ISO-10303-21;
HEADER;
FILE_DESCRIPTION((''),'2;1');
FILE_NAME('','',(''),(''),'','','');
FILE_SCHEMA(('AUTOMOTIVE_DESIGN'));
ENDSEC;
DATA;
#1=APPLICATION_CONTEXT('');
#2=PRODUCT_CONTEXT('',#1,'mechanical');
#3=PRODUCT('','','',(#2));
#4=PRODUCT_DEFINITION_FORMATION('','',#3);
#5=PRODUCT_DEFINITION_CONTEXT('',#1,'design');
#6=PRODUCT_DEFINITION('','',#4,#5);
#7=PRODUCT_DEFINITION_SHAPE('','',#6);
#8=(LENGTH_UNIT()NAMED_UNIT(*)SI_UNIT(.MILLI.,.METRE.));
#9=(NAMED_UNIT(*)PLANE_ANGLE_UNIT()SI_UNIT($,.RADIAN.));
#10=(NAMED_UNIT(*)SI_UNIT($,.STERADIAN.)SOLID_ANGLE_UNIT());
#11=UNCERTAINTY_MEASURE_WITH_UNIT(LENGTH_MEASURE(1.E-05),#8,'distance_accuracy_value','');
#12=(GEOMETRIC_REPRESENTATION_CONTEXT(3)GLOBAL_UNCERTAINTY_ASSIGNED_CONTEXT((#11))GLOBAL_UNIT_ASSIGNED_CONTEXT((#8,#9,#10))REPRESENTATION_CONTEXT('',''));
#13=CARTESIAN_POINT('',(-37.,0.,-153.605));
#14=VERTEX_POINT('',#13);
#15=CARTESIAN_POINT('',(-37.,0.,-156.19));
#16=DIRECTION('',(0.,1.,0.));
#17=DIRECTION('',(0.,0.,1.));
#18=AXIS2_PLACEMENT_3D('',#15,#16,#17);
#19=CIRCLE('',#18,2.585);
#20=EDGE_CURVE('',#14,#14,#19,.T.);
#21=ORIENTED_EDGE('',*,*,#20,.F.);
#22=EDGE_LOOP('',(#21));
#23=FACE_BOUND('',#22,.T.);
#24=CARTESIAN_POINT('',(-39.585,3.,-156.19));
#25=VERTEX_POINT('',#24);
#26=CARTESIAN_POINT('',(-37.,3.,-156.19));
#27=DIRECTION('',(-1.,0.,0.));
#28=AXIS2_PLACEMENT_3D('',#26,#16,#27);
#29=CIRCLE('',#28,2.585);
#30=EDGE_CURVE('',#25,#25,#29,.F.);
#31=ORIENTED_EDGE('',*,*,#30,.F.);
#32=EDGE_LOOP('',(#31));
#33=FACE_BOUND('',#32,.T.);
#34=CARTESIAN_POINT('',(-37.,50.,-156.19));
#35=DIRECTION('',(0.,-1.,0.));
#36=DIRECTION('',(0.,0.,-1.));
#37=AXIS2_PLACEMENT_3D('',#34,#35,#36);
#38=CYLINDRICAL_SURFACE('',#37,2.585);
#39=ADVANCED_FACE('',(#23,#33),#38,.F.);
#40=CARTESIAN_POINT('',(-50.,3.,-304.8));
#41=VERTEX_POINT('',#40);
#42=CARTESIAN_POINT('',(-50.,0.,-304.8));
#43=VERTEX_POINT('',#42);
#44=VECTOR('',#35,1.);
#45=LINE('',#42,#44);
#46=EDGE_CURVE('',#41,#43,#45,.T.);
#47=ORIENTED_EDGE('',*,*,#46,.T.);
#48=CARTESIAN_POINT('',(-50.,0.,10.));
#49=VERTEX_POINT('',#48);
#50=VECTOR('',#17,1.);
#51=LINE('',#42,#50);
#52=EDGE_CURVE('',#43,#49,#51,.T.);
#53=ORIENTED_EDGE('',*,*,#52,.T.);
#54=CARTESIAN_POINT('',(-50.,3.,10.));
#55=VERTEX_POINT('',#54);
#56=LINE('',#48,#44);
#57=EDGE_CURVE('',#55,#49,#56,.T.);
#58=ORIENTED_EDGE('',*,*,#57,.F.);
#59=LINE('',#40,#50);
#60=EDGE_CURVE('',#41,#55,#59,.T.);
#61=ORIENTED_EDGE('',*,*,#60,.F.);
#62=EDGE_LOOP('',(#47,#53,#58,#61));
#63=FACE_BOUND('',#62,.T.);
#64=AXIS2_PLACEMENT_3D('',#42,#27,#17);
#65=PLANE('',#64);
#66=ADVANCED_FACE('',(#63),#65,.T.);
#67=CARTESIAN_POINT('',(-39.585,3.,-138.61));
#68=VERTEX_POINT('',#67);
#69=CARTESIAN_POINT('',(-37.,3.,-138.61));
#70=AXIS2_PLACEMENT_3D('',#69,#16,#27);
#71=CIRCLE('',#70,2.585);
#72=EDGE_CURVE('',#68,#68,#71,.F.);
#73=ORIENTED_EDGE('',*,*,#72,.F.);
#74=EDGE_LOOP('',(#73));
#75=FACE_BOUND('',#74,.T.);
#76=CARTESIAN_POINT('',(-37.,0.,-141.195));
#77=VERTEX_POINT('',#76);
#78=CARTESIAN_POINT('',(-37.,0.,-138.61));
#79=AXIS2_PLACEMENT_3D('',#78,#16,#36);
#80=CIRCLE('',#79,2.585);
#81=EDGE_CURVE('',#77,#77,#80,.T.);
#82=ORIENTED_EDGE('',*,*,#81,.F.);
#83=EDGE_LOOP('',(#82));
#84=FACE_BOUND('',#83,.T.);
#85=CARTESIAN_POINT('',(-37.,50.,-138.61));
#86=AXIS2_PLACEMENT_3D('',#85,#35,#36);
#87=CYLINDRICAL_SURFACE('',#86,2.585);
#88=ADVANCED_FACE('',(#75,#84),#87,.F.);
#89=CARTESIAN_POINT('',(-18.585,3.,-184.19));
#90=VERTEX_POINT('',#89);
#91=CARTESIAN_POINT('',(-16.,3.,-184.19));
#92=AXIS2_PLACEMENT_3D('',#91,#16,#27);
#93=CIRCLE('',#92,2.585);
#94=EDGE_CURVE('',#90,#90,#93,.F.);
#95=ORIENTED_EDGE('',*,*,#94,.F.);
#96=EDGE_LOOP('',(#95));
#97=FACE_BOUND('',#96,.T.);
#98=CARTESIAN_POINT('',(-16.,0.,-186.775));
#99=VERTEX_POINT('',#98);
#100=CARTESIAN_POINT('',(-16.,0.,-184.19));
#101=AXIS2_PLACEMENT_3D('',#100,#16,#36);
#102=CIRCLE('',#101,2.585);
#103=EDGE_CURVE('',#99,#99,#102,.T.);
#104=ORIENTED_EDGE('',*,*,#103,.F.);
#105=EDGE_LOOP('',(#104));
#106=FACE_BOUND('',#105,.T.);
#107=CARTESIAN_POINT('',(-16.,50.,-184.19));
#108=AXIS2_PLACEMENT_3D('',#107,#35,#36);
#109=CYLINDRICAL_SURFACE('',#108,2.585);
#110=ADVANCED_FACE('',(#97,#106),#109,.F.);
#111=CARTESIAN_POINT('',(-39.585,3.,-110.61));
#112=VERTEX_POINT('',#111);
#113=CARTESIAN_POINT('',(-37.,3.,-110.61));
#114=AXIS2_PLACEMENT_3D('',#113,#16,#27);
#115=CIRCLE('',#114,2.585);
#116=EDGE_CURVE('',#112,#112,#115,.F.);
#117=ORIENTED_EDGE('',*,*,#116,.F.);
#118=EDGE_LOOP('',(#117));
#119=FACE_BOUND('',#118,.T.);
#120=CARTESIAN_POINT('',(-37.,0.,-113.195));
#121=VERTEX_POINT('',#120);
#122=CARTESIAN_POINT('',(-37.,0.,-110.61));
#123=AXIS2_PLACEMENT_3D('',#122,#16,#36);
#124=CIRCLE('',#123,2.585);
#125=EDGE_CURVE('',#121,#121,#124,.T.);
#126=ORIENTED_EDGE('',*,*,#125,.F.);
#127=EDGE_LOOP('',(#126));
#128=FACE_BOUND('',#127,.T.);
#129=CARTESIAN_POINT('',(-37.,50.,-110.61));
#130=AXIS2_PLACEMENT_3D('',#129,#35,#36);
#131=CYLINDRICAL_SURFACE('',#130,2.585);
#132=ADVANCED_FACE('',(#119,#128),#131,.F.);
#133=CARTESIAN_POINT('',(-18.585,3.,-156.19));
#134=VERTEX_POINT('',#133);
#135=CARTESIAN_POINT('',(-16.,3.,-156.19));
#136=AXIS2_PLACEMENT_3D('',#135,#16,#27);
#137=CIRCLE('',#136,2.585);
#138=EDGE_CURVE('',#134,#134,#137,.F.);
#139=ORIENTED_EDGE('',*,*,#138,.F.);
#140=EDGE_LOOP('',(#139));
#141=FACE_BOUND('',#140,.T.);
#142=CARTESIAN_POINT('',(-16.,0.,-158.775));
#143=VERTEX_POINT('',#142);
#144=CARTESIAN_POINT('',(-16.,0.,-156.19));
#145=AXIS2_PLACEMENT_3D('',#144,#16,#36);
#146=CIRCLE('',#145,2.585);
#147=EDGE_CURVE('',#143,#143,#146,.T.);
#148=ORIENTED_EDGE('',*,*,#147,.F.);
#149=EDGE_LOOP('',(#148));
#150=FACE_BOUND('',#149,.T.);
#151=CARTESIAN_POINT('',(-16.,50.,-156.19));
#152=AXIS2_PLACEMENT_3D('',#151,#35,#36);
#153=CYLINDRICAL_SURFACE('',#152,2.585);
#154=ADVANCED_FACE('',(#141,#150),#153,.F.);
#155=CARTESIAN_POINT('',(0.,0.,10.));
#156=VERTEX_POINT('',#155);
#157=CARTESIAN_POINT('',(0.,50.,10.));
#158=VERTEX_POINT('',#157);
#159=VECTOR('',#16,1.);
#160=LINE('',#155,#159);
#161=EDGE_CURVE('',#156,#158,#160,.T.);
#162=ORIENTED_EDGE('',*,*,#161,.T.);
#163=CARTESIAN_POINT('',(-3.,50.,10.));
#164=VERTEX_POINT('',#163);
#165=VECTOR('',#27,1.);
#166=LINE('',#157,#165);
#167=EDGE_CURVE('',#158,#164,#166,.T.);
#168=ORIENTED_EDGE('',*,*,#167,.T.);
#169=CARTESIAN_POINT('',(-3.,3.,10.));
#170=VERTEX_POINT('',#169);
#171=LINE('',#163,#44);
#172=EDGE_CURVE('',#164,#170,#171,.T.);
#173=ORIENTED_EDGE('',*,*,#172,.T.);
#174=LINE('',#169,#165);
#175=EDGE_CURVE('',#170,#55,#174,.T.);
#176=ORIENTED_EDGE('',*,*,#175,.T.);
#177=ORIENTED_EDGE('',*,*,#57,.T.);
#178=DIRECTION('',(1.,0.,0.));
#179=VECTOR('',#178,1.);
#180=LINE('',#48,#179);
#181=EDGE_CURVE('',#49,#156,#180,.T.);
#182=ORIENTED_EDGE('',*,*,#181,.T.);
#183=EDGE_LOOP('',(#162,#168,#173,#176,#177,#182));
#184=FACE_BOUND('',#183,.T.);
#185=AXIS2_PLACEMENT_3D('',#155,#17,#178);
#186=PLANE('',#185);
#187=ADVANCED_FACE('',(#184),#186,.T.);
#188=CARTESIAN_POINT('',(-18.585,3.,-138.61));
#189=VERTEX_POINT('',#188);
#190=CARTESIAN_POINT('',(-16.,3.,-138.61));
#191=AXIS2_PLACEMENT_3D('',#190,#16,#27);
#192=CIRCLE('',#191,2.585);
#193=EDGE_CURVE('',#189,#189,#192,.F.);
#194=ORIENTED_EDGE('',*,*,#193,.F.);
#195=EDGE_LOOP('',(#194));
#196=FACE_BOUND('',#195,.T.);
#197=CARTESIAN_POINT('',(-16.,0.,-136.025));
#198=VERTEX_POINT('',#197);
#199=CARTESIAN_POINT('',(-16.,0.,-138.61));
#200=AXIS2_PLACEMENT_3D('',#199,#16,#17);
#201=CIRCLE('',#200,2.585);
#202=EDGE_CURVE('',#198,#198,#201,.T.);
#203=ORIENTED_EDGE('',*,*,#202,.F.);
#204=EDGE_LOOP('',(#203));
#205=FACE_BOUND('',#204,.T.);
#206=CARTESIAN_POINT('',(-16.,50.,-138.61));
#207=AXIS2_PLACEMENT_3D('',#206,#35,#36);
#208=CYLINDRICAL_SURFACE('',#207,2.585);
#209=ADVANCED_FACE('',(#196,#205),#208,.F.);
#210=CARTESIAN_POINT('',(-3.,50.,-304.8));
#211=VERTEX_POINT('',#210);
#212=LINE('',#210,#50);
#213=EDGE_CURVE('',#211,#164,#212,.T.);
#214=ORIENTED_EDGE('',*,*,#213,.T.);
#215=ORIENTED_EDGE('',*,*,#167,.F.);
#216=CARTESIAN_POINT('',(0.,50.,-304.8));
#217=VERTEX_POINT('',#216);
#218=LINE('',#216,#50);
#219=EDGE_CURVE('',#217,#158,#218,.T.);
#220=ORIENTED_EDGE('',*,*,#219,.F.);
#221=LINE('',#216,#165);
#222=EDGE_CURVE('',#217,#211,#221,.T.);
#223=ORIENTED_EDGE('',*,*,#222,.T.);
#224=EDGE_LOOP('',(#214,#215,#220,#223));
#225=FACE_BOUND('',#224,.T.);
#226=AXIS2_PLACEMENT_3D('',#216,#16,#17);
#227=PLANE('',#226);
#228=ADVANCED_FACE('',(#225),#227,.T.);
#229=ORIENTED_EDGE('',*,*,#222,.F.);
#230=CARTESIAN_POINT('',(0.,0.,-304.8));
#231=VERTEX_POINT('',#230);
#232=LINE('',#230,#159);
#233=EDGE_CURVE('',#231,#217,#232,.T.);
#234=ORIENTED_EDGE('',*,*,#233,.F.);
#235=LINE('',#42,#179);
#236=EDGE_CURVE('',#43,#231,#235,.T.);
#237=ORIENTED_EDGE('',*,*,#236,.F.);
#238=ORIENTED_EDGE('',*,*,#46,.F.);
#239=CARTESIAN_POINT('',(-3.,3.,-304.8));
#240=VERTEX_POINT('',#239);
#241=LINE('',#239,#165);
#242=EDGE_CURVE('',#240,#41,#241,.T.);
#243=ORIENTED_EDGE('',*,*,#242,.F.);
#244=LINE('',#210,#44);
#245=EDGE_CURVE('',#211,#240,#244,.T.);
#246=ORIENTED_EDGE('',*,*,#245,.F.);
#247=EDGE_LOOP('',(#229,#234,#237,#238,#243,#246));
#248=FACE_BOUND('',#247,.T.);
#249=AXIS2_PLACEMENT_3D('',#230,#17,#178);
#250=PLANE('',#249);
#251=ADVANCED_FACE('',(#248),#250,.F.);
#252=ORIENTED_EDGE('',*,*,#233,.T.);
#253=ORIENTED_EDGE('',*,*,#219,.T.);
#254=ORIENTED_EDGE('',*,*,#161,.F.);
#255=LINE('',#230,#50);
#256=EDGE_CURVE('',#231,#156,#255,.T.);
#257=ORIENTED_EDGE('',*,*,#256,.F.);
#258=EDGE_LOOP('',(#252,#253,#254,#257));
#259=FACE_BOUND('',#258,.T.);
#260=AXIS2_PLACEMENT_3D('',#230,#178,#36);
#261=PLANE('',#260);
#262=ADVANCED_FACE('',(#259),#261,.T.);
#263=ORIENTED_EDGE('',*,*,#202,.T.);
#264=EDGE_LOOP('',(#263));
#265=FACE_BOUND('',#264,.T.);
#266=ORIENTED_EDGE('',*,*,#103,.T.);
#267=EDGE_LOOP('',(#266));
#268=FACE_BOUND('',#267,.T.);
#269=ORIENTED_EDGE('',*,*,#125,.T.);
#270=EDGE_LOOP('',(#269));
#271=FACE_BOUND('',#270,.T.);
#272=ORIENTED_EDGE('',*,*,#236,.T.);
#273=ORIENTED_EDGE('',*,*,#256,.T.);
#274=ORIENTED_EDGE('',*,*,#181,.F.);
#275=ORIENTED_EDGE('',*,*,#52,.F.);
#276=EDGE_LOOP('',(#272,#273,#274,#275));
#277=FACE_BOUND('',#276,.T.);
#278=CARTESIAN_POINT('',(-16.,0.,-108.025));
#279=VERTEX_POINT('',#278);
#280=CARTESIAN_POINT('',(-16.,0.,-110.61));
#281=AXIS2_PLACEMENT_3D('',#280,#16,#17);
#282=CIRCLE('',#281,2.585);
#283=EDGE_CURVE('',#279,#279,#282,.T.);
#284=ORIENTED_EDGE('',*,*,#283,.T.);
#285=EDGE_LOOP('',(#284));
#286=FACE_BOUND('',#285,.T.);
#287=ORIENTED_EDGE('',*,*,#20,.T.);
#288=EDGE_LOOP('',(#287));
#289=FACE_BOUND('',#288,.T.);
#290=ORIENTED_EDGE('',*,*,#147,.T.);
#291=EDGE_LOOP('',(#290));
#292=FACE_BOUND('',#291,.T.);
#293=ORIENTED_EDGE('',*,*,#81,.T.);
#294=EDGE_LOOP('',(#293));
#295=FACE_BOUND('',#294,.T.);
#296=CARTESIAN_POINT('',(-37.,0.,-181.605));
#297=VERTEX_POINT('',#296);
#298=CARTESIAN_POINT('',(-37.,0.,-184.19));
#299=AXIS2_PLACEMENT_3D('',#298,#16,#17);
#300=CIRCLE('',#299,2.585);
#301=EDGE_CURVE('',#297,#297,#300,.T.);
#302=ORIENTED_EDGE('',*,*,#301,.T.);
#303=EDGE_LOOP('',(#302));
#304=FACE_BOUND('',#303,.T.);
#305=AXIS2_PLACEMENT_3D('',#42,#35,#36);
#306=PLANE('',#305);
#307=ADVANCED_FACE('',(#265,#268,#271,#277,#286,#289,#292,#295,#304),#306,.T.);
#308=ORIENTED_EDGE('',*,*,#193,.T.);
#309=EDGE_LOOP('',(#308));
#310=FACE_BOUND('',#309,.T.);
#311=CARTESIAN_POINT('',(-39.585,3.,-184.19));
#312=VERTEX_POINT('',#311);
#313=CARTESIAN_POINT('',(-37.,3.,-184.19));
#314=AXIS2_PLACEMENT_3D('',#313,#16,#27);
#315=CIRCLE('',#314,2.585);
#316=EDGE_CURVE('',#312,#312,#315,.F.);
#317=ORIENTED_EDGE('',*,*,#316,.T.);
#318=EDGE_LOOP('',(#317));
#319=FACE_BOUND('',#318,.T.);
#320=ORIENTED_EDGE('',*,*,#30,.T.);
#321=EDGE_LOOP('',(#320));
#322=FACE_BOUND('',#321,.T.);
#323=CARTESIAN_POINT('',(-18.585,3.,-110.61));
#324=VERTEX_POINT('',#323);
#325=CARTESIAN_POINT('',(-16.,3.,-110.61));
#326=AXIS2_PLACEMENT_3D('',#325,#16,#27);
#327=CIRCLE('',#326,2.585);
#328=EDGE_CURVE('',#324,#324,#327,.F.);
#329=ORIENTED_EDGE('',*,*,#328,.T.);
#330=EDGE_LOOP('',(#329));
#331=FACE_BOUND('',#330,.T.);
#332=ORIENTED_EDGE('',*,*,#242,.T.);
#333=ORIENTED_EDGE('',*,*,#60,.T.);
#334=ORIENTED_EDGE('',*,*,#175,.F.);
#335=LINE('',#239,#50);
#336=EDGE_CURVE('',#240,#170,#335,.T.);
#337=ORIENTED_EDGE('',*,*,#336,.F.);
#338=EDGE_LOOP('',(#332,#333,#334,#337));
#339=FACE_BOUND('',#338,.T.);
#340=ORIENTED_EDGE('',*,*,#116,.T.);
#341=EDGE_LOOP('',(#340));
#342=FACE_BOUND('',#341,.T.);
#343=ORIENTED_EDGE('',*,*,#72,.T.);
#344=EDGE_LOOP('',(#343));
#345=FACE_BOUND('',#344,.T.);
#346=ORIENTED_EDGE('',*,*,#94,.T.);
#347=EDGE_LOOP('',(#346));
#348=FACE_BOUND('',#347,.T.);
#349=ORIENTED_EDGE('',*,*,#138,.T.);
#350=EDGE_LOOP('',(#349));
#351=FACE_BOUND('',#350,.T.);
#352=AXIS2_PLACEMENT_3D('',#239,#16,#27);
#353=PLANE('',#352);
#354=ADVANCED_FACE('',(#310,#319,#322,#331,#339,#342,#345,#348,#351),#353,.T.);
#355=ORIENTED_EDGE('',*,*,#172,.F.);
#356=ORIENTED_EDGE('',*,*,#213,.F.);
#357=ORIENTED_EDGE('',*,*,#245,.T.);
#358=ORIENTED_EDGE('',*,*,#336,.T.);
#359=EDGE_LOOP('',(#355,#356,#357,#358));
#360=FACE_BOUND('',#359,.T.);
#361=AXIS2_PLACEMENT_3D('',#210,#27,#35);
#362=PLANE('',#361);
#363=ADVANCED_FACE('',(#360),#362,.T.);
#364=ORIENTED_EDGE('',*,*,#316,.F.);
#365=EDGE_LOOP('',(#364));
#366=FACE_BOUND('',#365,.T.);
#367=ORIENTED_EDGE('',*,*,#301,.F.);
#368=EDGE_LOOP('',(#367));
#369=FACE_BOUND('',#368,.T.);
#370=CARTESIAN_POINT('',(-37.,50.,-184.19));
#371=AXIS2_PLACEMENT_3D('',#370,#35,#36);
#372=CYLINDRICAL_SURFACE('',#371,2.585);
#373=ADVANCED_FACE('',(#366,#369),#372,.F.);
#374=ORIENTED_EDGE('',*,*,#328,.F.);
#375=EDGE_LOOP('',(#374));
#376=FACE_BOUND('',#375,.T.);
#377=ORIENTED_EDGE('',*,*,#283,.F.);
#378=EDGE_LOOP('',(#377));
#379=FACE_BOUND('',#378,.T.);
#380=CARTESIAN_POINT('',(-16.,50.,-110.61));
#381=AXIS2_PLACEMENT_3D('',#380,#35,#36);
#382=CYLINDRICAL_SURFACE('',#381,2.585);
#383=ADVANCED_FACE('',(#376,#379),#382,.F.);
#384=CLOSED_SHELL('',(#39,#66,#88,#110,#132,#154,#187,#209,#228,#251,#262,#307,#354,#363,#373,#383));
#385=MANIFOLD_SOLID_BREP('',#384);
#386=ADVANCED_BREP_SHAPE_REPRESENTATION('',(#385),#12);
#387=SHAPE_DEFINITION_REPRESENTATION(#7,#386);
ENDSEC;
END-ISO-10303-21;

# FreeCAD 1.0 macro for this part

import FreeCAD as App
import Part
import Sketcher

V = App.Vector


def add_polygon(sketch, points):
    """Adds a closed chain of lines whose ends are joined by coincident constraints."""
    first, n = sketch.GeometryCount, len(points)
    for a, b in zip(points, points[1:] + points[:1]):
        sketch.addGeometry(Part.LineSegment(App.Vector(*a, 0), App.Vector(*b, 0)), False)
    for i in range(n):
        sketch.addConstraint(Sketcher.Constraint("Coincident", first + i, 2, first + (i + 1) % n, 1))

doc = App.newDocument("Part")
params = doc.addObject("Spreadsheet::Sheet", "Params")
for row, (alias, value) in enumerate([
    ("sketch1_width", "50 mm"),
    ("sketch1_width2", "3 mm"),
    ("pad1_length", "10 mm"),
    ("pad1_length2", "304.8 mm"),
    ("sketch2_diameter", "5.17 mm"),
], start=1):
    params.set(f"A{row}", alias)
    params.set(f"B{row}", "=" + value)
    params.setAlias(f"B{row}", alias)

body = doc.addObject("PartDesign::Body", "Body")

sketch1 = body.newObject("Sketcher::SketchObject", "Sketch")
sketch1.AttachmentSupport = (doc.getObject("XY_Plane"), [""])
sketch1.MapMode = "FlatFace"
add_polygon(sketch1, [(-50, 0), (0, 0), (0, 50), (-3, 50), (-3, 3), (-50, 3)])
sketch1.addConstraint(Sketcher.Constraint("Horizontal", 0))
sketch1.addConstraint(Sketcher.Constraint("Vertical", 1))
sketch1.addConstraint(Sketcher.Constraint("Horizontal", 2))
sketch1.addConstraint(Sketcher.Constraint("Vertical", 3))
sketch1.addConstraint(Sketcher.Constraint("Horizontal", 4))
sketch1.addConstraint(Sketcher.Constraint("Vertical", 5))
sketch1.addConstraint(Sketcher.Constraint("Coincident", 0, 2, -1, 1))
sketch1.addConstraint(Sketcher.Constraint("Equal", 0, 1))
sketch1.addConstraint(Sketcher.Constraint("Equal", 4, 3))
sketch1.addConstraint(Sketcher.Constraint("DistanceX", 0, 1, 0, 2, 50.0))
sketch1.addConstraint(Sketcher.Constraint("DistanceX", 2, 2, 2, 1, 3.0))
sketch1.setExpression("Constraints[15]", "Params.sketch1_width")
sketch1.setExpression("Constraints[16]", "Params.sketch1_width2")
pad1 = body.newObject("PartDesign::Pad", "Pad")
pad1.Profile = sketch1
pad1.Type = "TwoLengths"
pad1.setExpression("Length", "Params.pad1_length")
pad1.setExpression("Length2", "Params.pad1_length2")

sketch2 = body.newObject("Sketcher::SketchObject", "Sketch001")
sketch2.AttachmentSupport = (doc.getObject("XZ_Plane"), [""])
sketch2.MapMode = "FlatFace"
sketch2.addGeometry(Part.Circle(V(-37, -156.2, 0), V(0, 0, 1), 2.6), False)
sketch2.addGeometry(Part.Circle(V(-16, -156.2, 0), V(0, 0, 1), 2.6), False)
sketch2.addGeometry(Part.Circle(V(-37, -184.2, 0), V(0, 0, 1), 2.6), False)
sketch2.addGeometry(Part.Circle(V(-16, -184.2, 0), V(0, 0, 1), 2.6), False)
sketch2.addGeometry(Part.Circle(V(-37, -110.6, 0), V(0, 0, 1), 2.6), False)
sketch2.addGeometry(Part.Circle(V(-16, -110.6, 0), V(0, 0, 1), 2.6), False)
sketch2.addGeometry(Part.Circle(V(-16, -138.6, 0), V(0, 0, 1), 2.6), False)
sketch2.addGeometry(Part.Circle(V(-37, -138.6, 0), V(0, 0, 1), 2.6), False)
sketch2.addConstraint(Sketcher.Constraint("Equal", 0, 1))
sketch2.addConstraint(Sketcher.Constraint("Equal", 1, 2))
sketch2.addConstraint(Sketcher.Constraint("Equal", 2, 3))
sketch2.addConstraint(Sketcher.Constraint("Equal", 3, 4))
sketch2.addConstraint(Sketcher.Constraint("Equal", 4, 5))
sketch2.addConstraint(Sketcher.Constraint("Equal", 5, 6))
sketch2.addConstraint(Sketcher.Constraint("Equal", 6, 7))
sketch2.addConstraint(Sketcher.Constraint("Horizontal", 0, 3, 1, 3))
sketch2.addConstraint(Sketcher.Constraint("Horizontal", 2, 3, 3, 3))
sketch2.addConstraint(Sketcher.Constraint("Horizontal", 4, 3, 5, 3))
sketch2.addConstraint(Sketcher.Constraint("Horizontal", 6, 3, 7, 3))
sketch2.addConstraint(Sketcher.Constraint("Vertical", 0, 3, 2, 3))
sketch2.addConstraint(Sketcher.Constraint("Vertical", 1, 3, 3, 3))
sketch2.addConstraint(Sketcher.Constraint("Vertical", 2, 3, 4, 3))
sketch2.addConstraint(Sketcher.Constraint("Vertical", 3, 3, 5, 3))
sketch2.addConstraint(Sketcher.Constraint("Vertical", 5, 3, 6, 3))
sketch2.addConstraint(Sketcher.Constraint("Vertical", 4, 3, 7, 3))
sketch2.addConstraint(Sketcher.Constraint("Diameter", 0, 5.17))
sketch2.addConstraint(Sketcher.Constraint("DistanceX", 0, 3, -1, 1, 37.0))
sketch2.addConstraint(Sketcher.Constraint("DistanceX", 1, 3, -1, 1, 16.0))
sketch2.addConstraint(Sketcher.Constraint("DistanceY", 2, 3, 0, 3, 28.0))
sketch2.addConstraint(Sketcher.Constraint("DistanceY", 6, 3, 5, 3, 28.0))
sketch2.addConstraint(Sketcher.Constraint("DistanceY", 0, 3, -1, 1, 156.19))
sketch2.addConstraint(Sketcher.Constraint("DistanceY", 4, 3, -1, 1, 110.61))
sketch2.setExpression("Constraints[17]", "Params.sketch2_diameter")
pocket1 = body.newObject("PartDesign::Pocket", "Pocket")
pocket1.Profile = sketch2
pocket1.Type = "ThroughAll"

doc.recompute()
